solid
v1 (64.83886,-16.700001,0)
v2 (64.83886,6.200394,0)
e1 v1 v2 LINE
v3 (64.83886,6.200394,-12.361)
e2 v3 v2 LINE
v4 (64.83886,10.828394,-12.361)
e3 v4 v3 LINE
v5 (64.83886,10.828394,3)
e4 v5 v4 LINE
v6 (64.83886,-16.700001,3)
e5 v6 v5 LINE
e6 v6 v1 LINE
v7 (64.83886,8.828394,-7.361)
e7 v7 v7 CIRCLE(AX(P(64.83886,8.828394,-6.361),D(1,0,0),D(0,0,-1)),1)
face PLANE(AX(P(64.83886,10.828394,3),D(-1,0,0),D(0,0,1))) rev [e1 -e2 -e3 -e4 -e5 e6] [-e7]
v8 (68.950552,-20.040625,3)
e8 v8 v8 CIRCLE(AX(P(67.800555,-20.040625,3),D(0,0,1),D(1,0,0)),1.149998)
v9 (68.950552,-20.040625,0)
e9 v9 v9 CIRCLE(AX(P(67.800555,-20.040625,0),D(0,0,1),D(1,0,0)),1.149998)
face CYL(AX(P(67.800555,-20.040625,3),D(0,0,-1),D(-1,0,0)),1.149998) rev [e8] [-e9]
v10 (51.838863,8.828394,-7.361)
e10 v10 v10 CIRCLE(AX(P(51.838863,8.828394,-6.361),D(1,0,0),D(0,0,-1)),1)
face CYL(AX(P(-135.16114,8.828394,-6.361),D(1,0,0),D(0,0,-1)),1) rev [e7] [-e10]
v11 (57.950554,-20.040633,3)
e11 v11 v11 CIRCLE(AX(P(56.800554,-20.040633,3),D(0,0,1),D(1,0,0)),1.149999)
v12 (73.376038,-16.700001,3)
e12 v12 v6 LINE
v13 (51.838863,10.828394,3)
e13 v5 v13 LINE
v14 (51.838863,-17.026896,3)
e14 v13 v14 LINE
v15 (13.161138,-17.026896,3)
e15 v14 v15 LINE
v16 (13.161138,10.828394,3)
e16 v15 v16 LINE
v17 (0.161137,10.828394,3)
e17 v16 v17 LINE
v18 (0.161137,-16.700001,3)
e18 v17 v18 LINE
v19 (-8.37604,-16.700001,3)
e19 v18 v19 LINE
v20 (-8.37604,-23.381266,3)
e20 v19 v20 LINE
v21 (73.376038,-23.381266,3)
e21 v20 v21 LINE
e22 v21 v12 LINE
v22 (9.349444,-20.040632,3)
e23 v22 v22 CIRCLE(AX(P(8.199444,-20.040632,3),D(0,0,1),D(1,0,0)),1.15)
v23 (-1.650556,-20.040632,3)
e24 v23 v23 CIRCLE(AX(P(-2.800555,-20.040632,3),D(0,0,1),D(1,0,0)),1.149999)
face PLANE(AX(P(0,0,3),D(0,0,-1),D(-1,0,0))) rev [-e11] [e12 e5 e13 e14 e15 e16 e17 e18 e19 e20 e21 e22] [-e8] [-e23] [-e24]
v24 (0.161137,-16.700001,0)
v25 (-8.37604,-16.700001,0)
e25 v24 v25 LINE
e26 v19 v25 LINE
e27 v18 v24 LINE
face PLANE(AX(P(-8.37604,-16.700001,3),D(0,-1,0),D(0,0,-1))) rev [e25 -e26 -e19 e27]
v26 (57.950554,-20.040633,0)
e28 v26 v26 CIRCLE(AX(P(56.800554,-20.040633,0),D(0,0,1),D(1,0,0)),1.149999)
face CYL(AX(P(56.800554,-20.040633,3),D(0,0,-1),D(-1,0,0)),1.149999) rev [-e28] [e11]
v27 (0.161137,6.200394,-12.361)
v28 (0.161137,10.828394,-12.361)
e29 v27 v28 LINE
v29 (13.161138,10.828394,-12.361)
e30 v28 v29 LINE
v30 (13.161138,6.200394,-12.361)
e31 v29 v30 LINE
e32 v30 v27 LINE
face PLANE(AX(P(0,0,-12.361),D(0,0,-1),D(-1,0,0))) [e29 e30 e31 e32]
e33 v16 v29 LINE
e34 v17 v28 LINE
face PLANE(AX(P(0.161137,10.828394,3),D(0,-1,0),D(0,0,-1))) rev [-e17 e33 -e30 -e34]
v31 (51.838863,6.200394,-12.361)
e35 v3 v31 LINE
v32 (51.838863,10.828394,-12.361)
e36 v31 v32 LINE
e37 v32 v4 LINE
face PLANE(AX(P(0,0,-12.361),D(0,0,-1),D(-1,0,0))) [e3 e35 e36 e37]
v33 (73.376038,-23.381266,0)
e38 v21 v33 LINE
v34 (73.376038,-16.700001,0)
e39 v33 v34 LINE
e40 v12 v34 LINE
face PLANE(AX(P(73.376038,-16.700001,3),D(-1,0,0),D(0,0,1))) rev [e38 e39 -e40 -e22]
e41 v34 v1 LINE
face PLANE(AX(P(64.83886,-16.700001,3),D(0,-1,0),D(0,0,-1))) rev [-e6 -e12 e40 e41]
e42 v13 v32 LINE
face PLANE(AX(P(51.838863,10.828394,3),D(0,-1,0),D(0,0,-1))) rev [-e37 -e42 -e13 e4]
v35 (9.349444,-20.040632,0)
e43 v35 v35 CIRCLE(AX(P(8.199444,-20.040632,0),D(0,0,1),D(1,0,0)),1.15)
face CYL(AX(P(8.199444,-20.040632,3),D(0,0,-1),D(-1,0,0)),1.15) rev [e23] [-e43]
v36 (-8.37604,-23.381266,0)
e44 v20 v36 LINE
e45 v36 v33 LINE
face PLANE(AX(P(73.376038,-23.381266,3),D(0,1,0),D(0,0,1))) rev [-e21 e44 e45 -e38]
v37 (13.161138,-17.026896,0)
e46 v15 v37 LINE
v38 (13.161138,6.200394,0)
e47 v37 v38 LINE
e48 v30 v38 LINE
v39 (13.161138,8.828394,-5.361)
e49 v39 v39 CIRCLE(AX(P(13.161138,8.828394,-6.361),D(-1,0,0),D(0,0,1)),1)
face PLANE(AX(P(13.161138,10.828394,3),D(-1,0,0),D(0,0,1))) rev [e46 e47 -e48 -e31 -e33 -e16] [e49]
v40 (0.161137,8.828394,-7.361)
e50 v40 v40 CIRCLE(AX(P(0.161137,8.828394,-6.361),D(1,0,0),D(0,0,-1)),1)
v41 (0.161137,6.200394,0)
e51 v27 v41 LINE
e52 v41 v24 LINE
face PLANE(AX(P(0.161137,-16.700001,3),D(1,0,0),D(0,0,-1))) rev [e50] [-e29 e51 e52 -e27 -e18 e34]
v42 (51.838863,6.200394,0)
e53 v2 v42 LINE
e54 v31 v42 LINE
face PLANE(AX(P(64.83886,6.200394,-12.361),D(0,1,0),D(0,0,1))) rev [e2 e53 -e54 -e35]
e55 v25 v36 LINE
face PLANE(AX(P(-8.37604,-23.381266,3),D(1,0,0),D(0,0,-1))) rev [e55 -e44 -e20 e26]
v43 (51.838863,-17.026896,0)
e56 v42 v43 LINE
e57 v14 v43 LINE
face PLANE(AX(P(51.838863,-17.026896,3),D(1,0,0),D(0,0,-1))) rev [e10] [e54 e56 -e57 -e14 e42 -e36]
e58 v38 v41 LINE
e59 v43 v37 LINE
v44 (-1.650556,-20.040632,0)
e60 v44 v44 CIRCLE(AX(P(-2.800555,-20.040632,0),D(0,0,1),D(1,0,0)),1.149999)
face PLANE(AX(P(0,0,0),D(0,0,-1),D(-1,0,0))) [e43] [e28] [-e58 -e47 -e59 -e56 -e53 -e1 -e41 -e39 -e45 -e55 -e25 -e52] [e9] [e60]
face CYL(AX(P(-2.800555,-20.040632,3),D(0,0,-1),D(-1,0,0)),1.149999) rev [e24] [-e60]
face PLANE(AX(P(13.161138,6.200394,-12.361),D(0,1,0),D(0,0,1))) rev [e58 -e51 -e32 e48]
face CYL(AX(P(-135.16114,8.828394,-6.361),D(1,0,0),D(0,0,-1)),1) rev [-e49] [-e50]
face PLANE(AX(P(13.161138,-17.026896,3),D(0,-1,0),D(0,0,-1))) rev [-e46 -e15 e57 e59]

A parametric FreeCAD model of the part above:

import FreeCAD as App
import Part
import Sketcher

doc = App.newDocument("Part")
body = doc.addObject("PartDesign::Body", "Body")

# Sketch on XY plane
sketch1 = doc.addObject("Sketcher::SketchObject", "Sketch")
body.addObject(sketch1)
sketch1.AttachmentSupport = (doc.XY_Plane, [""])
sketch1.MapMode = "FlatFace"
sketch1.addGeometry(Part.LineSegment(App.Vector(13.161138, -17.026896, 0), App.Vector(13.161138, 10.828394, 0)), False)
sketch1.addGeometry(Part.LineSegment(App.Vector(13.161138, 10.828394, 0), App.Vector(0.161137, 10.828394, 0)), False)
sketch1.addGeometry(Part.LineSegment(App.Vector(0.161137, 10.828394, 0), App.Vector(0.161137, -16.700001, 0)), False)
sketch1.addGeometry(Part.LineSegment(App.Vector(0.161137, -16.700001, 0), App.Vector(-8.37604, -16.700001, 0)), False)
sketch1.addGeometry(Part.LineSegment(App.Vector(-8.37604, -16.700001, 0), App.Vector(-8.37604, -23.381266, 0)), False)
sketch1.addGeometry(Part.LineSegment(App.Vector(-8.37604, -23.381266, 0), App.Vector(73.376038, -23.381266, 0)), False)
sketch1.addGeometry(Part.LineSegment(App.Vector(73.376038, -23.381266, 0), App.Vector(73.376038, -16.700001, 0)), False)
sketch1.addGeometry(Part.LineSegment(App.Vector(73.376038, -16.700001, 0), App.Vector(64.83886, -16.700001, 0)), False)
sketch1.addGeometry(Part.LineSegment(App.Vector(64.83886, -16.700001, 0), App.Vector(64.83886, 10.828394, 0)), False)
sketch1.addGeometry(Part.LineSegment(App.Vector(64.83886, 10.828394, 0), App.Vector(51.838863, 10.828394, 0)), False)
sketch1.addGeometry(Part.LineSegment(App.Vector(51.838863, 10.828394, 0), App.Vector(51.838863, -17.026896, 0)), False)
sketch1.addGeometry(Part.LineSegment(App.Vector(51.838863, -17.026896, 0), App.Vector(13.161138, -17.026896, 0)), False)
sketch1.addGeometry(Part.Circle(App.Vector(56.800554, -20.040633, 0), App.Vector(0, 0, 1), 1.149999), False)
sketch1.addGeometry(Part.Circle(App.Vector(8.199444, -20.040632, 0), App.Vector(0, 0, 1), 1.15), False)
sketch1.addGeometry(Part.Circle(App.Vector(-2.800555, -20.040632, 0), App.Vector(0, 0, 1), 1.149999), False)
sketch1.addGeometry(Part.Circle(App.Vector(67.800555, -20.040625, 0), App.Vector(0, 0, 1), 1.149998), False)
sketch1.addConstraint(Sketcher.Constraint("Coincident", 0, 2, 1, 1))
sketch1.addConstraint(Sketcher.Constraint("Coincident", 1, 2, 2, 1))
sketch1.addConstraint(Sketcher.Constraint("Coincident", 2, 2, 3, 1))
sketch1.addConstraint(Sketcher.Constraint("Coincident", 3, 2, 4, 1))
sketch1.addConstraint(Sketcher.Constraint("Coincident", 4, 2, 5, 1))
sketch1.addConstraint(Sketcher.Constraint("Coincident", 5, 2, 6, 1))
sketch1.addConstraint(Sketcher.Constraint("Coincident", 6, 2, 7, 1))
sketch1.addConstraint(Sketcher.Constraint("Coincident", 7, 2, 8, 1))
sketch1.addConstraint(Sketcher.Constraint("Coincident", 8, 2, 9, 1))
sketch1.addConstraint(Sketcher.Constraint("Coincident", 9, 2, 10, 1))
sketch1.addConstraint(Sketcher.Constraint("Coincident", 10, 2, 11, 1))
sketch1.addConstraint(Sketcher.Constraint("Coincident", 11, 2, 0, 1))
sketch1.addConstraint(Sketcher.Constraint("Vertical", 0))
sketch1.addConstraint(Sketcher.Constraint("Horizontal", 1))
sketch1.addConstraint(Sketcher.Constraint("Vertical", 2))
sketch1.addConstraint(Sketcher.Constraint("Horizontal", 3))
sketch1.addConstraint(Sketcher.Constraint("Vertical", 4))
sketch1.addConstraint(Sketcher.Constraint("Horizontal", 5))
sketch1.addConstraint(Sketcher.Constraint("Vertical", 6))
sketch1.addConstraint(Sketcher.Constraint("Horizontal", 7))
sketch1.addConstraint(Sketcher.Constraint("Vertical", 8))
sketch1.addConstraint(Sketcher.Constraint("Horizontal", 9))
sketch1.addConstraint(Sketcher.Constraint("Vertical", 10))
sketch1.addConstraint(Sketcher.Constraint("Horizontal", 11))
sketch1.addConstraint(Sketcher.Constraint("Equal", 12, 13))
sketch1.addConstraint(Sketcher.Constraint("Equal", 13, 14))
sketch1.addConstraint(Sketcher.Constraint("Equal", 14, 15))
sketch1.addConstraint(Sketcher.Constraint("Horizontal", 12, 3, 13, 3))
sketch1.addConstraint(Sketcher.Constraint("Horizontal", 13, 3, 14, 3))
sketch1.addConstraint(Sketcher.Constraint("Horizontal", 3, 2, 6, 2))
sketch1.addConstraint(Sketcher.Constraint("Horizontal", 1, 2, 8, 2))
sketch1.addConstraint(Sketcher.Constraint("Equal", 3, 7))
sketch1.addConstraint(Sketcher.Constraint("Diameter", 12, 2.299999))
sketch1.addConstraint(Sketcher.Constraint("DistanceX", 1, 2, 1, 1, 13.0))
sketch1.addConstraint(Sketcher.Constraint("DistanceX", 14, 3, 13, 3, 10.999999))
sketch1.addConstraint(Sketcher.Constraint("DistanceX", 12, 3, 15, 3, 11.0))
sketch1.addConstraint(Sketcher.Constraint("DistanceY", 2, 2, -1, 1, 16.700001))
sketch1.addConstraint(Sketcher.Constraint("DistanceX", 5, 1, 5, 2, 81.752078))
sketch1.addConstraint(Sketcher.Constraint("DistanceX", 7, 2, 7, 1, 8.537178))
sketch1.addConstraint(Sketcher.Constraint("DistanceY", 0, 1, 0, 2, 27.855289))
sketch1.addConstraint(Sketcher.Constraint("DistanceX", 9, 2, 9, 1, 12.999996))
sketch1.addConstraint(Sketcher.Constraint("DistanceY", 2, 2, 2, 1, 27.528395))
sketch1.addConstraint(Sketcher.Constraint("DistanceY", 4, 2, 4, 1, 6.681265))
sketch1.addConstraint(Sketcher.Constraint("DistanceX", 3, 2, -1, 1, 8.37604))
sketch1.addConstraint(Sketcher.Constraint("DistanceX", 13, 3, 12, 3, 48.60111))
sketch1.addConstraint(Sketcher.Constraint("DistanceY", 15, 3, 0, 2, 30.869019))
sketch1.addConstraint(Sketcher.Constraint("DistanceY", 14, 3, 2, 2, 3.340631))
sketch1.addConstraint(Sketcher.Constraint("DistanceX", 9, 2, 12, 3, 4.961691))
pad1 = doc.addObject("PartDesign::Pad", "Pad")
body.addObject(pad1)
pad1.Profile = sketch1
pad1.Length = 3

# Sketch on XY plane
sketch2 = doc.addObject("Sketcher::SketchObject", "Sketch001")
body.addObject(sketch2)
sketch2.AttachmentSupport = (doc.XY_Plane, [""])
sketch2.MapMode = "FlatFace"
sketch2.addGeometry(Part.LineSegment(App.Vector(64.83886, 10.828394, 0), App.Vector(64.83886, 6.200394, 0)), False)
sketch2.addGeometry(Part.LineSegment(App.Vector(64.83886, 6.200394, 0), App.Vector(51.838863, 6.200394, 0)), False)
sketch2.addGeometry(Part.LineSegment(App.Vector(51.838863, 6.200394, 0), App.Vector(51.838863, 10.828394, 0)), False)
sketch2.addGeometry(Part.LineSegment(App.Vector(51.838863, 10.828394, 0), App.Vector(64.83886, 10.828394, 0)), False)
sketch2.addGeometry(Part.LineSegment(App.Vector(13.161138, 10.828394, 0), App.Vector(13.161138, 6.200394, 0)), False)
sketch2.addGeometry(Part.LineSegment(App.Vector(13.161138, 6.200394, 0), App.Vector(0.161137, 6.200394, 0)), False)
sketch2.addGeometry(Part.LineSegment(App.Vector(0.161137, 6.200394, 0), App.Vector(0.161137, 10.828394, 0)), False)
sketch2.addGeometry(Part.LineSegment(App.Vector(0.161137, 10.828394, 0), App.Vector(13.161138, 10.828394, 0)), False)
sketch2.addConstraint(Sketcher.Constraint("Coincident", 0, 2, 1, 1))
sketch2.addConstraint(Sketcher.Constraint("Coincident", 1, 2, 2, 1))
sketch2.addConstraint(Sketcher.Constraint("Coincident", 2, 2, 3, 1))
sketch2.addConstraint(Sketcher.Constraint("Coincident", 3, 2, 0, 1))
sketch2.addConstraint(Sketcher.Constraint("Coincident", 4, 2, 5, 1))
sketch2.addConstraint(Sketcher.Constraint("Coincident", 5, 2, 6, 1))
sketch2.addConstraint(Sketcher.Constraint("Coincident", 6, 2, 7, 1))
sketch2.addConstraint(Sketcher.Constraint("Coincident", 7, 2, 4, 1))
sketch2.addConstraint(Sketcher.Constraint("Vertical", 0))
sketch2.addConstraint(Sketcher.Constraint("Horizontal", 1))
sketch2.addConstraint(Sketcher.Constraint("Vertical", 2))
sketch2.addConstraint(Sketcher.Constraint("Horizontal", 3))
sketch2.addConstraint(Sketcher.Constraint("Vertical", 4))
sketch2.addConstraint(Sketcher.Constraint("Horizontal", 5))
sketch2.addConstraint(Sketcher.Constraint("Vertical", 6))
sketch2.addConstraint(Sketcher.Constraint("Horizontal", 7))
sketch2.addConstraint(Sketcher.Constraint("Horizontal", 1, 2, 4, 2))
sketch2.addConstraint(Sketcher.Constraint("Horizontal", 3, 2, 6, 2))
sketch2.addConstraint(Sketcher.Constraint("DistanceX", 5, 2, 5, 1, 13.0))
sketch2.addConstraint(Sketcher.Constraint("DistanceY", 0, 2, 0, 1, 4.628))
sketch2.addConstraint(Sketcher.Constraint("DistanceX", 1, 2, 1, 1, 12.999996))
sketch2.addConstraint(Sketcher.Constraint("DistanceX", -1, 1, 0, 2, 64.83886))
sketch2.addConstraint(Sketcher.Constraint("DistanceX", 4, 2, 0, 2, 51.677722))
sketch2.addConstraint(Sketcher.Constraint("DistanceY", -1, 1, 0, 2, 6.200394))
pad2 = doc.addObject("PartDesign::Pad", "Pad001")
body.addObject(pad2)
pad2.Profile = sketch2
pad2.Length = 12.361
pad2.Reversed = True

# Sketch on YZ plane
sketch3 = doc.addObject("Sketcher::SketchObject", "Sketch002")
body.addObject(sketch3)
sketch3.AttachmentSupport = (doc.YZ_Plane, [""])
sketch3.MapMode = "FlatFace"
sketch3.AttachmentOffset = App.Placement(App.Vector(0, 0, 64.83886), App.Rotation())
sketch3.addGeometry(Part.Circle(App.Vector(8.828394, -6.361, 0), App.Vector(0, 0, 1), 1), False)
sketch3.addConstraint(Sketcher.Constraint("Diameter", 0, 2.0))
sketch3.addConstraint(Sketcher.Constraint("DistanceY", 0, 3, -1, 1, 6.361))
sketch3.addConstraint(Sketcher.Constraint("DistanceX", -1, 1, 0, 3, 8.828394))
pocket1 = doc.addObject("PartDesign::Pocket", "Pocket")
body.addObject(pocket1)
pocket1.Profile = sketch3
pocket1.Length = 200

doc.recompute()
